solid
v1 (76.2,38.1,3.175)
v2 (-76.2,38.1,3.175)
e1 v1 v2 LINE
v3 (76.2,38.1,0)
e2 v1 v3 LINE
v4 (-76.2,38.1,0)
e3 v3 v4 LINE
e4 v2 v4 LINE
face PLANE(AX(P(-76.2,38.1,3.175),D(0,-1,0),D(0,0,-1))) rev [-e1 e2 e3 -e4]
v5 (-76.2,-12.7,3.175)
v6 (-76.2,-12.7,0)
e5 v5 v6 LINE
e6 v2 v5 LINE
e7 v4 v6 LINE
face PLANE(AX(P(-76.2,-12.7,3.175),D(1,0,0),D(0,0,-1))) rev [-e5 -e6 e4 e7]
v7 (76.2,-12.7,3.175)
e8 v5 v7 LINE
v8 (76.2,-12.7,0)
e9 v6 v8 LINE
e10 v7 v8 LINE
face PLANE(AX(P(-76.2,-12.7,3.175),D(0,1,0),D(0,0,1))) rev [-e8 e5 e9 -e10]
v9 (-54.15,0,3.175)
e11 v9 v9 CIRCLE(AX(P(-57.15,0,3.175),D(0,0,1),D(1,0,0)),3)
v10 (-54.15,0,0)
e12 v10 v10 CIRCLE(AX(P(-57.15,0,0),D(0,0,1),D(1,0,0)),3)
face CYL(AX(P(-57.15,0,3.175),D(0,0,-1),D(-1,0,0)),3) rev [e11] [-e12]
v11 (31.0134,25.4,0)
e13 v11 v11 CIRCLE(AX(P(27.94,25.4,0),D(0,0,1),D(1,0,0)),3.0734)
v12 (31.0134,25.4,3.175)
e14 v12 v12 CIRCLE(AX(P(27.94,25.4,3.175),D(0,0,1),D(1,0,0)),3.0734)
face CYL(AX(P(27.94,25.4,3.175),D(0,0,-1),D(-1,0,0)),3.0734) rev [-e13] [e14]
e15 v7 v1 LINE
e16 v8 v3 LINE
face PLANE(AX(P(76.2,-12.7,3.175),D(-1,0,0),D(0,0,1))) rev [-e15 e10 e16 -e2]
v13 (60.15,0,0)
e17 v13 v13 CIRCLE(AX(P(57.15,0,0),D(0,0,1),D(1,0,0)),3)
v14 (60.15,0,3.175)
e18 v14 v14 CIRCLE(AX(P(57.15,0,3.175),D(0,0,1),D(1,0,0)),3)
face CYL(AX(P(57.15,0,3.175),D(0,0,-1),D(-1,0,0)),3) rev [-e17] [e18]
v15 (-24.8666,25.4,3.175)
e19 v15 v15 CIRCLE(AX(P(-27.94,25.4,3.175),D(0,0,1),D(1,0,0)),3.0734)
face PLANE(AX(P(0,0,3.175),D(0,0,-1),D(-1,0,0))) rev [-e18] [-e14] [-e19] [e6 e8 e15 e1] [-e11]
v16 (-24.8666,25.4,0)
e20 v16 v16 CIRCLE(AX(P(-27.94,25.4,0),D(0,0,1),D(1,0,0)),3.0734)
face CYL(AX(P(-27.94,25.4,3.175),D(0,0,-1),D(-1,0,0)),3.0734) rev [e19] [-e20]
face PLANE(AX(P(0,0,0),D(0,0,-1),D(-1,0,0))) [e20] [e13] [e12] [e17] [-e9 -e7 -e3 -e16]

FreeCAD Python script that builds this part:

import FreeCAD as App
import Part
import Sketcher
Q = App.Units.Quantity


def add_polygon(sketch, points):
    """Adds a closed chain of lines whose ends are joined by coincident constraints."""
    first, n = sketch.GeometryCount, len(points)
    for a, b in zip(points, points[1:] + points[:1]):
        sketch.addGeometry(Part.LineSegment(App.Vector(*a, 0), App.Vector(*b, 0)), False)
    for i in range(n):
        sketch.addConstraint(Sketcher.Constraint("Coincident", first + i, 2, first + (i + 1) % n, 1))

doc = App.newDocument("Part")
body = doc.addObject("PartDesign::Body", "Body")

# Sketch on XY plane
sketch1 = body.newObject("Sketcher::SketchObject", "Sketch")
sketch1.AttachmentSupport = (doc.getObject("XY_Plane"), [""])
sketch1.MapMode = "FlatFace"
add_polygon(sketch1, [(-76.2, 38.1), (-76.2, -12.7), (76.2, -12.7), (76.2, 38.1)])  # lines 0-3
sketch1.addGeometry(Part.Circle(App.Vector(-57.15, 0, 0), App.Vector(0, 0, 1), 3), False)  # 4
sketch1.addGeometry(Part.Circle(App.Vector(57.15, 0, 0), App.Vector(0, 0, 1), 3), False)  # 5
sketch1.addGeometry(Part.Circle(App.Vector(-27.94, 25.4, 0), App.Vector(0, 0, 1), 3.0734), False)  # 6
sketch1.addGeometry(Part.Circle(App.Vector(27.94, 25.4, 0), App.Vector(0, 0, 1), 3.0734), False)  # 7
sketch1.addConstraint(Sketcher.Constraint("Vertical", 0))
sketch1.addConstraint(Sketcher.Constraint("Horizontal", 1))
sketch1.addConstraint(Sketcher.Constraint("Vertical", 2))
sketch1.addConstraint(Sketcher.Constraint("Horizontal", 3))
sketch1.addConstraint(Sketcher.Constraint("Equal", 4, 5))
sketch1.addConstraint(Sketcher.Constraint("Equal", 6, 7))
sketch1.addConstraint(Sketcher.Constraint("Symmetric", 4, 3, 5, 3, -1, 1))
sketch1.addConstraint(Sketcher.Constraint("Symmetric", 6, 3, 7, 3, -2))
sketch1.addConstraint(Sketcher.Constraint("PointOnObject", 4, 3, -1))
sketch1.addConstraint(Sketcher.Constraint("DistanceX", 1, 1, 1, 2, Q("6 in")))
sketch1.addConstraint(Sketcher.Constraint("DistanceY", 0, 2, 0, 1, Q("2 in")))
sketch1.addConstraint(Sketcher.Constraint("Diameter", 6, Q("0.242 in")))
sketch1.addConstraint(Sketcher.Constraint("DistanceY", -1, 1, 6, 3, Q("1 in")))
sketch1.addConstraint(Sketcher.Constraint("DistanceX", 0, 2, -1, 1, Q("3 in")))
sketch1.addConstraint(Sketcher.Constraint("DistanceX", 6, 3, -1, 1, Q("1.1 in")))
sketch1.addConstraint(Sketcher.Constraint("DistanceY", 0, 2, -1, 1, Q("0.5 in")))
sketch1.addConstraint(Sketcher.Constraint("DistanceX", 4, 3, 5, 3, Q("4.5 in")))
sketch1.addConstraint(Sketcher.Constraint("Diameter", 4, 6.0))
pad1 = body.newObject("PartDesign::Pad", "Pad")
pad1.Profile = sketch1
pad1.Length = Q("0.125 in")

doc.recompute()
